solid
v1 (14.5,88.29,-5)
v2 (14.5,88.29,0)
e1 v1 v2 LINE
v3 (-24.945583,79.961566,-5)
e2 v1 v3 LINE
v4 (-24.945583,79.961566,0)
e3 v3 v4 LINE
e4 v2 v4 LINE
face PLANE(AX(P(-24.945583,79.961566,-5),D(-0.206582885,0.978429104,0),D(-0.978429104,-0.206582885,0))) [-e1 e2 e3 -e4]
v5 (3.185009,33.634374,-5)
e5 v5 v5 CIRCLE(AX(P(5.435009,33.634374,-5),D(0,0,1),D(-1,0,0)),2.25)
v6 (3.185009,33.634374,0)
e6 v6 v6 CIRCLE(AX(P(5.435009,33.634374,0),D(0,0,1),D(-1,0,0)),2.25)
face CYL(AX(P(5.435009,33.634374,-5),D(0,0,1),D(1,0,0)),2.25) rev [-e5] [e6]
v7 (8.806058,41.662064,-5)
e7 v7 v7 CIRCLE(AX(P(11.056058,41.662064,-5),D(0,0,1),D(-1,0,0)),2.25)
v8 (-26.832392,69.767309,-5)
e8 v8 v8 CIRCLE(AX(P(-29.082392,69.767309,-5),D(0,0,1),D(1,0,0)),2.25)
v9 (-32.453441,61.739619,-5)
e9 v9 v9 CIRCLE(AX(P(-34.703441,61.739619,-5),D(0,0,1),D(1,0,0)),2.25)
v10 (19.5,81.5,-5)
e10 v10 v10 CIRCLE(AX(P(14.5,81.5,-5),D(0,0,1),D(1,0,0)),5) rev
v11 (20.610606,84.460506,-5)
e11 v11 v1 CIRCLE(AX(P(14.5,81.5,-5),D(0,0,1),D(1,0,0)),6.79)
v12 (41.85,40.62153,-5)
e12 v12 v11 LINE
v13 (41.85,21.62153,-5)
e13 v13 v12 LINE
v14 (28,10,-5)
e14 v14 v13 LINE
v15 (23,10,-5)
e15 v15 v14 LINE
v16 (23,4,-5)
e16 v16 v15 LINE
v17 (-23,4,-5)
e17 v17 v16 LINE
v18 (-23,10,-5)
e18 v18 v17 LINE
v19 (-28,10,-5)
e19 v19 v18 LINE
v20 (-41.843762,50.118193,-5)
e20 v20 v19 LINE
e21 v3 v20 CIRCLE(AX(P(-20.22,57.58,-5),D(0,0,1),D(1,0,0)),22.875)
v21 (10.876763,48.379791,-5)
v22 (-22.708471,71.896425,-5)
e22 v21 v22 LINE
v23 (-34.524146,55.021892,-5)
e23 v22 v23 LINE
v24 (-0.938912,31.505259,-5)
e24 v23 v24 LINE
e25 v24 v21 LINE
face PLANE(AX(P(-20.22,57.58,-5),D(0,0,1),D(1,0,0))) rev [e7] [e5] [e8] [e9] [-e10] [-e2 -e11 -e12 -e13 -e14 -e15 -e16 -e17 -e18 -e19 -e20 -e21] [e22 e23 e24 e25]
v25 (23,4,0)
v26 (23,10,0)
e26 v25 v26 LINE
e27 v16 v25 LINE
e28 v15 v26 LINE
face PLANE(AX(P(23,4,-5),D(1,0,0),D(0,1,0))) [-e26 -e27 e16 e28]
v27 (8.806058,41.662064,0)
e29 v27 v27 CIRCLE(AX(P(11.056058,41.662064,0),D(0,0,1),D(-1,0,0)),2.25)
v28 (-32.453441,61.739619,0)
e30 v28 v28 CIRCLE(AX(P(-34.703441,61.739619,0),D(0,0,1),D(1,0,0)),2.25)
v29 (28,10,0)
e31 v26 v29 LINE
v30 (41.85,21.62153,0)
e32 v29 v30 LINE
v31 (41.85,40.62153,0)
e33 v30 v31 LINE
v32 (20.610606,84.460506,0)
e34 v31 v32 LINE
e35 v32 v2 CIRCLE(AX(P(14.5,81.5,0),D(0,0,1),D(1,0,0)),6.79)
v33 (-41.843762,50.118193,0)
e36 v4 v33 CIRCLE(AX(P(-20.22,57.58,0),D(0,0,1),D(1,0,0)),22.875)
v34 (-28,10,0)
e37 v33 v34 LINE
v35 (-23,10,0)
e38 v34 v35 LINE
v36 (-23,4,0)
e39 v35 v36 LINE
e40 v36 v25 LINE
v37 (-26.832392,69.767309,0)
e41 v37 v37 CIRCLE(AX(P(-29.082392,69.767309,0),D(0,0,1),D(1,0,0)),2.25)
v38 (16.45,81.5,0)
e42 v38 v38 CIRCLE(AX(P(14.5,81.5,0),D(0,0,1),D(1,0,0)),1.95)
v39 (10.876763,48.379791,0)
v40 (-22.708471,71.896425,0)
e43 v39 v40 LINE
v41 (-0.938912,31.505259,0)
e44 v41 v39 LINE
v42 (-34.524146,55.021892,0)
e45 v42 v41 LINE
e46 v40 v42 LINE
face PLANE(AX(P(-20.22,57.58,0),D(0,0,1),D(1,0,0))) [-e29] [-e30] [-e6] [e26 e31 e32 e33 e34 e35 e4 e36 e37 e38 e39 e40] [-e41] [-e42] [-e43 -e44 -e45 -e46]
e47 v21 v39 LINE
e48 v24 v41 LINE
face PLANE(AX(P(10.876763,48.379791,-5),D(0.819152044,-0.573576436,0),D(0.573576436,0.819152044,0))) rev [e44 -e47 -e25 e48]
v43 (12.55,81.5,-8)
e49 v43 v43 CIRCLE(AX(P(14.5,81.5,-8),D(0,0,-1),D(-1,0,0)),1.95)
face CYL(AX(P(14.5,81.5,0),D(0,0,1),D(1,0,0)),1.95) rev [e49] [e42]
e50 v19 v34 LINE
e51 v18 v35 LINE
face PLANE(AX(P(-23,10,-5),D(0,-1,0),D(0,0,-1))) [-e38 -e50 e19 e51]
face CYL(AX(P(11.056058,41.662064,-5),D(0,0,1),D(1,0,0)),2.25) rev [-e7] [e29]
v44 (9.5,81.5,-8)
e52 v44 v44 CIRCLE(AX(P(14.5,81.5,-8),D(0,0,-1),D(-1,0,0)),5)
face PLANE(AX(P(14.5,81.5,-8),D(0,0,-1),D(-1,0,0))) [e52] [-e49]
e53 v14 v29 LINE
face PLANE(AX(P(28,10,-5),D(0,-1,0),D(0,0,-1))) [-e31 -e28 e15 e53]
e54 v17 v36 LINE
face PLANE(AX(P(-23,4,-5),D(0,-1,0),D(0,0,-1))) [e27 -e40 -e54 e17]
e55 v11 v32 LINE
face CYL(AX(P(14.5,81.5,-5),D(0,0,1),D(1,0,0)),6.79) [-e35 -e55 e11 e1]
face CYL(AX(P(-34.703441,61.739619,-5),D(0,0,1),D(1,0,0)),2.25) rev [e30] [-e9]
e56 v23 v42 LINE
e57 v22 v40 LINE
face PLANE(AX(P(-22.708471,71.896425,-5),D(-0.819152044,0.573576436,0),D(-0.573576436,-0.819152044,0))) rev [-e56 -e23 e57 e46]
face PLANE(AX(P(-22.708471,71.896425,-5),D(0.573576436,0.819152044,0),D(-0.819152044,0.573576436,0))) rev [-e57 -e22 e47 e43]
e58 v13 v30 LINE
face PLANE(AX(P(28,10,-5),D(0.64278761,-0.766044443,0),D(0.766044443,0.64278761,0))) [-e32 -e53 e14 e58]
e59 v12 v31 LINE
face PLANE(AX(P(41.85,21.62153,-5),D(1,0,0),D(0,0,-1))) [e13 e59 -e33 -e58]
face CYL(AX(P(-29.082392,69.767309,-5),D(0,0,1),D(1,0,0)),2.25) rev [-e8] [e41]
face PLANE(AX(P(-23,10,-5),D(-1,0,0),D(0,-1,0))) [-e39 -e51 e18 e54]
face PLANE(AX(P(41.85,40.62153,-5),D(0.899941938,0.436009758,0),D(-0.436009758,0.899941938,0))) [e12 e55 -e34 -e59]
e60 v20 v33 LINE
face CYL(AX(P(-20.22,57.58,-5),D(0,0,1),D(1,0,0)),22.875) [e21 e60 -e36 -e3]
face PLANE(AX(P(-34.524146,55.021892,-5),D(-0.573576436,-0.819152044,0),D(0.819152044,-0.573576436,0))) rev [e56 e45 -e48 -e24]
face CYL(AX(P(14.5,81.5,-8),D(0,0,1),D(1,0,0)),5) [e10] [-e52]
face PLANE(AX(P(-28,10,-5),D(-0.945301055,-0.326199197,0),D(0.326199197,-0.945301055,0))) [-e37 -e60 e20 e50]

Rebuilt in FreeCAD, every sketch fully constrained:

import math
import FreeCAD as App
import Part
import Sketcher
from FreeCAD import Vector
Q = App.Units.Quantity


def add_polygon(sketch, points):
    """Adds a closed chain of lines whose ends are joined by coincident constraints."""
    first, n = sketch.GeometryCount, len(points)
    for a, b in zip(points, points[1:] + points[:1]):
        sketch.addGeometry(Part.LineSegment(App.Vector(*a, 0), App.Vector(*b, 0)), False)
    for i in range(n):
        sketch.addConstraint(Sketcher.Constraint("Coincident", first + i, 2, first + (i + 1) % n, 1))

doc = App.newDocument("Part")
body = doc.addObject("PartDesign::Body", "Body")

# Sketch on XY plane
sketch1 = body.newObject("Sketcher::SketchObject", "Sketch")
sketch1.AttachmentSupport = (doc.getObject("XY_Plane"), [""])
sketch1.MapMode = "FlatFace"
sketch1.addGeometry(Part.LineSegment(Vector(41.85, 40.62153, 0), Vector(20.610606, 84.460506, 0)), False)  # 0
sketch1.addGeometry(Part.ArcOfCircle(Part.Circle(Vector(14.5, 81.5, 0), Vector(0, 0, 1), 6.79), math.radians(25.849564), math.radians(90)), False)  # 1
sketch1.addGeometry(Part.LineSegment(Vector(14.5, 88.29, 0), Vector(-24.945583, 79.961566, 0)), False)  # 2
sketch1.addGeometry(Part.ArcOfCircle(Part.Circle(Vector(-20.22, 57.58, 0), Vector(0, 0, 1), 22.875), math.radians(101.922175), math.radians(199.038244)), False)  # 3
sketch1.addGeometry(Part.LineSegment(Vector(-41.843762, 50.118193, 0), Vector(-28, 10, 0)), False)  # 4
sketch1.addGeometry(Part.LineSegment(Vector(-28, 10, 0), Vector(-23, 10, 0)), False)  # 5
sketch1.addGeometry(Part.LineSegment(Vector(-23, 10, 0), Vector(-23, 4, 0)), False)  # 6
sketch1.addGeometry(Part.LineSegment(Vector(-23, 4, 0), Vector(23, 4, 0)), False)  # 7
sketch1.addGeometry(Part.LineSegment(Vector(23, 4, 0), Vector(23, 10, 0)), False)  # 8
sketch1.addGeometry(Part.LineSegment(Vector(23, 10, 0), Vector(28, 10, 0)), False)  # 9
sketch1.addGeometry(Part.LineSegment(Vector(28, 10, 0), Vector(41.85, 21.62153, 0)), False)  # 10
sketch1.addGeometry(Part.LineSegment(Vector(41.85, 21.62153, 0), Vector(41.85, 40.62153, 0)), False)  # 11
sketch1.addGeometry(Part.Circle(Vector(5.435009, 33.634374, 0), Vector(0, 0, 1), 2.25), False)  # 12
sketch1.addGeometry(Part.Circle(Vector(11.056058, 41.662064, 0), Vector(0, 0, 1), 2.25), False)  # 13
sketch1.addGeometry(Part.Circle(Vector(-34.703441, 61.739619, 0), Vector(0, 0, 1), 2.25), False)  # 14
add_polygon(sketch1, [(-34.524146, 55.021892), (-22.708471, 71.896425), (10.876763, 48.379791), (-0.938912, 31.505259)])  # lines 15-18
sketch1.addGeometry(Part.Circle(Vector(-29.082392, 69.767309, 0), Vector(0, 0, 1), 2.25), False)  # 19
sketch1.addConstraint(Sketcher.Constraint("Tangent", 0, 2, 1, 1))
sketch1.addConstraint(Sketcher.Constraint("Coincident", 1, 2, 2, 1))
sketch1.addConstraint(Sketcher.Constraint("Tangent", 2, 2, 3, 1))
sketch1.addConstraint(Sketcher.Constraint("Tangent", 3, 2, 4, 1))
sketch1.addConstraint(Sketcher.Constraint("Coincident", 4, 2, 5, 1))
sketch1.addConstraint(Sketcher.Constraint("Coincident", 5, 2, 6, 1))
sketch1.addConstraint(Sketcher.Constraint("Coincident", 6, 2, 7, 1))
sketch1.addConstraint(Sketcher.Constraint("Coincident", 7, 2, 8, 1))
sketch1.addConstraint(Sketcher.Constraint("Coincident", 8, 2, 9, 1))
sketch1.addConstraint(Sketcher.Constraint("Coincident", 9, 2, 10, 1))
sketch1.addConstraint(Sketcher.Constraint("Coincident", 10, 2, 11, 1))
sketch1.addConstraint(Sketcher.Constraint("Coincident", 11, 2, 0, 1))
sketch1.addConstraint(Sketcher.Constraint("Horizontal", 5))
sketch1.addConstraint(Sketcher.Constraint("Vertical", 6))
sketch1.addConstraint(Sketcher.Constraint("Horizontal", 7))
sketch1.addConstraint(Sketcher.Constraint("Vertical", 8))
sketch1.addConstraint(Sketcher.Constraint("Horizontal", 9))
sketch1.addConstraint(Sketcher.Constraint("Vertical", 11))
sketch1.addConstraint(Sketcher.Constraint("Equal", 12, 13))
sketch1.addConstraint(Sketcher.Constraint("Equal", 13, 14))
sketch1.addConstraint(Sketcher.Constraint("Equal", 14, 19))
sketch1.addConstraint(Sketcher.Constraint("Symmetric", 5, 2, 8, 2, -2))
sketch1.addConstraint(Sketcher.Constraint("Perpendicular", 15, 16))
sketch1.addConstraint(Sketcher.Constraint("Perpendicular", 16, 17))
sketch1.addConstraint(Sketcher.Constraint("Perpendicular", 17, 18))
sketch1.addConstraint(Sketcher.Constraint("Equal", 5, 9))
sketch1.addConstraint(Sketcher.Constraint("Diameter", 12, Q("4.5 mm")))
sketch1.addConstraint(Sketcher.Constraint("DistanceX", 5, 1, 5, 2, Q("5 mm")))
sketch1.addConstraint(Sketcher.Constraint("DistanceX", 7, 1, 7, 2, Q("46 mm")))
sketch1.addConstraint(Sketcher.Constraint("DistanceY", 6, 2, 6, 1, Q("6 mm")))
sketch1.addConstraint(Sketcher.Constraint("DistanceY", 11, 1, 11, 2, Q("19 mm")))
sketch1.addConstraint(Sketcher.Constraint("Angle", 10, Q("40 deg")))
sketch1.addConstraint(Sketcher.Constraint("Angle", 15, Q("55 deg")))
sketch1.addConstraint(Sketcher.Constraint("Radius", 1, Q("6.79 mm")))
sketch1.addConstraint(Sketcher.Constraint("Distance", 16, Q("41 mm")))
sketch1.addConstraint(Sketcher.Constraint("DistanceY", -1, 1, 4, 2, Q("10 mm")))
sketch1.addConstraint(Sketcher.Constraint("Radius", 3, Q("22.875 mm")))
sketch1.addConstraint(Sketcher.Constraint("Distance", 15, Q("20.6 mm")))
sketch1.addConstraint(Sketcher.Constraint("DistanceX", -1, 1, 1, 3, Q("14.5 mm")))
sketch1.addConstraint(Sketcher.Constraint("DistanceY", -1, 1, 1, 3, Q("81.5 mm")))
sketch1.addConstraint(Sketcher.Constraint("DistanceX", -1, 1, 1, 2, Q("14.5 mm")))
sketch1.addConstraint(Sketcher.Constraint("DistanceX", 3, 3, -1, 1, Q("20.22 mm")))
sketch1.addConstraint(Sketcher.Constraint("DistanceY", -1, 1, 3, 3, Q("57.58 mm")))
sketch1.addConstraint(Sketcher.Constraint("DistanceX", -1, 1, 10, 2, Q("41.85 mm")))
sketch1.addConstraint(Sketcher.Constraint("DistanceX", 14, 3, 13, 3, Q("45.759499 mm")))
sketch1.addConstraint(Sketcher.Constraint("DistanceX", 19, 3, 12, 3, Q("34.517401 mm")))
sketch1.addConstraint(Sketcher.Constraint("DistanceY", 3, 2, 18, 2, Q("4.903699 mm")))
sketch1.addConstraint(Sketcher.Constraint("DistanceX", -1, 1, 12, 3, Q("5.435009 mm")))
sketch1.addConstraint(Sketcher.Constraint("DistanceX", -1, 1, 13, 3, Q("11.056058 mm")))
sketch1.addConstraint(Sketcher.Constraint("DistanceY", -1, 1, 14, 3, Q("61.739619 mm")))
sketch1.addConstraint(Sketcher.Constraint("DistanceY", -1, 1, 19, 3, Q("69.767309 mm")))
sketch1.addConstraint(Sketcher.Constraint("DistanceX", 15, 2, -1, 1, Q("22.708471 mm")))
sketch1.addConstraint(Sketcher.Constraint("DistanceY", 12, 3, 13, 3, Q("8.02769 mm")))
sketch1.addConstraint(Sketcher.Constraint("DistanceY", 12, 3, 3, 2, Q("16.48382 mm")))
pad1 = body.newObject("PartDesign::Pad", "Pad")
pad1.Profile = sketch1
pad1.Length = 5
pad1.Reversed = True

# Sketch on XY plane
sketch2 = body.newObject("Sketcher::SketchObject", "Sketch001")
sketch2.AttachmentSupport = (doc.getObject("XY_Plane"), [""])
sketch2.MapMode = "FlatFace"
sketch2.addGeometry(Part.Circle(Vector(14.5, 81.5, 0), Vector(0, 0, 1), 1.95), False)
sketch2.addConstraint(Sketcher.Constraint("Diameter", 0, Q("3.9 mm")))
sketch2.addConstraint(Sketcher.Constraint("DistanceX", -1, 1, 0, 3, Q("14.5 mm")))
sketch2.addConstraint(Sketcher.Constraint("DistanceY", -1, 1, 0, 3, Q("81.5 mm")))
doc.recompute()
hole = body.newObject("PartDesign::Hole", "Hole")
hole.Profile = sketch2
hole.ThreadType = "None"
hole.Diameter = 3.9
hole.DepthType = "Dimension"
hole.Depth = 10
hole.DrillPoint = "Angled"
hole.DrillPointAngle = 118

# Sketch on XY plane
sketch3 = body.newObject("Sketcher::SketchObject", "Sketch002")
sketch3.AttachmentSupport = (doc.getObject("XY_Plane"), [""])
sketch3.MapMode = "FlatFace"
sketch3.AttachmentOffset = App.Placement(Vector(0, 0, -8), App.Rotation())
sketch3.addGeometry(Part.Circle(Vector(14.5, 81.5, 0), Vector(0, 0, 1), 5), False)
sketch3.addGeometry(Part.Circle(Vector(14.5, 81.5, 0), Vector(0, 0, 1), 1.95), False)
sketch3.addConstraint(Sketcher.Constraint("Coincident", 1, 3, 0, 3))
sketch3.addConstraint(Sketcher.Constraint("Diameter", 0, Q("10 mm")))
sketch3.addConstraint(Sketcher.Constraint("Diameter", 1, Q("3.9 mm")))
sketch3.addConstraint(Sketcher.Constraint("DistanceX", -1, 1, 0, 3, Q("14.5 mm")))
sketch3.addConstraint(Sketcher.Constraint("DistanceY", -1, 1, 0, 3, Q("81.5 mm")))
pad2 = body.newObject("PartDesign::Pad", "Pad001")
pad2.Profile = sketch3
pad2.Length = 3

doc.recompute()
